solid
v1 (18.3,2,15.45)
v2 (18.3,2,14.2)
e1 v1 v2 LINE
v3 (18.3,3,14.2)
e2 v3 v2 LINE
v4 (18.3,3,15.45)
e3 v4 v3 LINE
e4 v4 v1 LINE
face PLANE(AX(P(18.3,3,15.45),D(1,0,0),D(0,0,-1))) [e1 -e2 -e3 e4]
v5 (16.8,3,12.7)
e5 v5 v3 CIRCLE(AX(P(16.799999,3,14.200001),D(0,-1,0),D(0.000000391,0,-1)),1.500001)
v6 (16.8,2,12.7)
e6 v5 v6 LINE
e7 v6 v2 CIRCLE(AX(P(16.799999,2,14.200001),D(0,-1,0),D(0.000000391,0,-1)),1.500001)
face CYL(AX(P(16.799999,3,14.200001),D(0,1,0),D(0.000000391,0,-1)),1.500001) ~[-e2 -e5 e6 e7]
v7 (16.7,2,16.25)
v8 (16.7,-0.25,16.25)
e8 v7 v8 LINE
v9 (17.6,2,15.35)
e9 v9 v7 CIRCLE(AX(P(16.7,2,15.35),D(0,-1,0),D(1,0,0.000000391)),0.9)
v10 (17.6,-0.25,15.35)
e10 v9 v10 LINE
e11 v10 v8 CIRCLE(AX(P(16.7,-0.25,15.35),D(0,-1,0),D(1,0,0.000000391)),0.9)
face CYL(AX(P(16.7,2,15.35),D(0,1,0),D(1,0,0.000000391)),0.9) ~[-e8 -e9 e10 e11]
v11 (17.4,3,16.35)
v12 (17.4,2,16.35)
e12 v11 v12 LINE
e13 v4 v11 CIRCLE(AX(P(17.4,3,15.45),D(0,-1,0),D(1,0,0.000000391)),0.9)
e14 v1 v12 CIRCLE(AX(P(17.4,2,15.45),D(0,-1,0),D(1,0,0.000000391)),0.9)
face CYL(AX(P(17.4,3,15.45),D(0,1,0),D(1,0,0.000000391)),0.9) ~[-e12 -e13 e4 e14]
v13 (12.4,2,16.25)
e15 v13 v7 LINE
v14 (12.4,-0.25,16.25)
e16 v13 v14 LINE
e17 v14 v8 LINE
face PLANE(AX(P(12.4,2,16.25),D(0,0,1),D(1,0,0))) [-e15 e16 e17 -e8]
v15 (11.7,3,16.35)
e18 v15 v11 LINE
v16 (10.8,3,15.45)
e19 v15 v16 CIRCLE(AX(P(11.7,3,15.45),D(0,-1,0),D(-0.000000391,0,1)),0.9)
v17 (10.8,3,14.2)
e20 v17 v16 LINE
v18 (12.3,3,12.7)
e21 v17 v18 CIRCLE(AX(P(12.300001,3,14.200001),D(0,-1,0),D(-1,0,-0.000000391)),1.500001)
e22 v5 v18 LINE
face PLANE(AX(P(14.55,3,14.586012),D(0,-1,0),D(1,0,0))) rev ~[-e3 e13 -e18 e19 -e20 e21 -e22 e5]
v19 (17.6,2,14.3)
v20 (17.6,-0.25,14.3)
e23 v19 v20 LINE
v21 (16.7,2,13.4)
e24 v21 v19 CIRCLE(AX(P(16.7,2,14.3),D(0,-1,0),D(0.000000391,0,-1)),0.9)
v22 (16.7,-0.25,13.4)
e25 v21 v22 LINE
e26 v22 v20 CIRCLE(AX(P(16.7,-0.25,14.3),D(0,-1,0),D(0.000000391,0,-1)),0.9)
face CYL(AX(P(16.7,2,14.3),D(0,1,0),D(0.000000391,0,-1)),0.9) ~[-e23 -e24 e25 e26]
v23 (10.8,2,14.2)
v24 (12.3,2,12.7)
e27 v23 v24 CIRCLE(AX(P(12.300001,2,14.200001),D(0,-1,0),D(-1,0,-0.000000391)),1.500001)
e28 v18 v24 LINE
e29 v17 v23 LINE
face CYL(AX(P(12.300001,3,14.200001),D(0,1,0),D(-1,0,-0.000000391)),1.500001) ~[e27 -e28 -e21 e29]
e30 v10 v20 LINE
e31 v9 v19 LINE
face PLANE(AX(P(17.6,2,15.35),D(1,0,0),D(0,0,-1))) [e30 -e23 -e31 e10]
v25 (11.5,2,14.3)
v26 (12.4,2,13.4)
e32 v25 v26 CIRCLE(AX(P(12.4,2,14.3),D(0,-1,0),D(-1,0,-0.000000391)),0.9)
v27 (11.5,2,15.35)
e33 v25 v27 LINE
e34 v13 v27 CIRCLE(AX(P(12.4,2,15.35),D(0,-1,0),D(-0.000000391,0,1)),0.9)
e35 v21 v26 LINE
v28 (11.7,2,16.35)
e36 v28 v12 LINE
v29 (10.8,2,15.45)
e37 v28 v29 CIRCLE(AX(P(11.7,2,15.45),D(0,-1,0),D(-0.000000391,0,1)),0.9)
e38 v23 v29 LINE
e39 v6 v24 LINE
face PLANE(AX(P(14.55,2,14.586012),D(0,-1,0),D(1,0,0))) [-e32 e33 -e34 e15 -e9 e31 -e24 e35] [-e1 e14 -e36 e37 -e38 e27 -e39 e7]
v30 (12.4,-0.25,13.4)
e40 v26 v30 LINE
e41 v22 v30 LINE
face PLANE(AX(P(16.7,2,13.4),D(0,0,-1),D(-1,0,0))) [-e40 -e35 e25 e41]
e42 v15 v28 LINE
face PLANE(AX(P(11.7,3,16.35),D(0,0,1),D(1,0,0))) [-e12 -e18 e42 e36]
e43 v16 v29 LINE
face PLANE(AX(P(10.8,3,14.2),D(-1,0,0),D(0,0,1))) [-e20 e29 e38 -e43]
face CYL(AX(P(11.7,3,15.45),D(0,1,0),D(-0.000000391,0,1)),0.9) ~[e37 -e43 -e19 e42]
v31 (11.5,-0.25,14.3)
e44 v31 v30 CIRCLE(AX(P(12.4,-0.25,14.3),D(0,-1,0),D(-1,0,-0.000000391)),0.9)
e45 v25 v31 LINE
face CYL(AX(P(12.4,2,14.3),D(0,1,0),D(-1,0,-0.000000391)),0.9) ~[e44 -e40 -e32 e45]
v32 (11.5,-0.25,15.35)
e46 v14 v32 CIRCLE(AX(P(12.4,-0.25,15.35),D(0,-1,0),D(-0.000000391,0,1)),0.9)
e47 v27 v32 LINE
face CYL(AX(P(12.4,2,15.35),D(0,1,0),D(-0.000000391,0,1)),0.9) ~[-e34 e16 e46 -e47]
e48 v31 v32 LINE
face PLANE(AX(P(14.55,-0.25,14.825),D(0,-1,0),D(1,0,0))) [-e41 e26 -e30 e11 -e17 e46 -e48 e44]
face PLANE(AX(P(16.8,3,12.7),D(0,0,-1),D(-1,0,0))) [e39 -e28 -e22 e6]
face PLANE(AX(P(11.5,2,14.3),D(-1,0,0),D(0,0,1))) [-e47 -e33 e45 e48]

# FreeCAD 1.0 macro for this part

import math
import FreeCAD as App
import Part
import Sketcher

V = App.Vector
Q = App.Units.Quantity

doc = App.newDocument("Part")
params = doc.addObject("Spreadsheet::Sheet", "Params")
for row, (alias, value) in enumerate([
    ("sketch1_radius", "0.9 mm"),
    ("sketch1_radius2", "1.500001 mm"),
    ("sketch1_width", "4.5 mm"),
    ("sketch1_height", "1.25 mm"),
    ("pad1_length", "1 mm"),
    ("sketch2_radius", "0.9 mm"),
    ("sketch2_width", "4.3 mm"),
    ("sketch2_height", "1.05 mm"),
    ("pad2_length", "2.25 mm"),
], start=1):
    params.set(f"A{row}", alias)
    params.set(f"B{row}", "=" + value)
    params.setAlias(f"B{row}", alias)

body = doc.addObject("PartDesign::Body", "Body")

# Sketch on XZ plane
sketch1 = body.newObject("Sketcher::SketchObject", "Sketch")
sketch1.AttachmentSupport = (doc.getObject("XZ_Plane"), [""])
sketch1.MapMode = "FlatFace"
sketch1.addGeometry([
    Part.ArcOfCircle(Part.Circle(V(11.7, 15.4, 0), V(0, 0, 1), 0.9), math.radians(90), math.radians(180)),  # 0
    Part.LineSegment(V(10.8, 15.4, 0), V(10.8, 14.2, 0)),  # 1
    Part.ArcOfCircle(Part.Circle(V(12.3, 14.2, 0), V(0, 0, 1), 1.5), math.radians(-180), math.radians(-90)),  # 2
    Part.LineSegment(V(12.3, 12.7, 0), V(16.8, 12.7, 0)),  # 3
    Part.ArcOfCircle(Part.Circle(V(16.8, 14.2, 0), V(0, 0, 1), 1.5), math.radians(-90), math.radians(0)),  # 4
    Part.LineSegment(V(18.3, 14.2, 0), V(18.3, 15.4, 0)),  # 5
    Part.ArcOfCircle(Part.Circle(V(17.4, 15.4, 0), V(0, 0, 1), 0.9), math.radians(0), math.radians(90)),  # 6
    Part.LineSegment(V(17.4, 16.4, 0), V(11.7, 16.4, 0)),  # 7
], False)
sketch1.addConstraint([
    Sketcher.Constraint("Tangent", 0, 2, 1, 1),
    Sketcher.Constraint("Tangent", 1, 2, 2, 1),
    Sketcher.Constraint("Tangent", 2, 2, 3, 1),
    Sketcher.Constraint("Tangent", 3, 2, 4, 1),
    Sketcher.Constraint("Tangent", 4, 2, 5, 1),
    Sketcher.Constraint("Tangent", 5, 2, 6, 1),
    Sketcher.Constraint("Tangent", 6, 2, 7, 1),
    Sketcher.Constraint("Tangent", 7, 2, 0, 1),
    Sketcher.Constraint("Vertical", 1),
    Sketcher.Constraint("Horizontal", 3),
    Sketcher.Constraint("Vertical", 5),
    Sketcher.Constraint("Horizontal", 7),
    Sketcher.Constraint("Equal", 2, 4),
    Sketcher.Constraint("Equal", 0, 6),
    Sketcher.Constraint("Radius", 0, Q("0.9 mm")),
    Sketcher.Constraint("Radius", 2, Q("1.500001 mm")),
    Sketcher.Constraint("DistanceX", 3, 1, 3, 2, Q("4.5 mm")),
    Sketcher.Constraint("DistanceY", 1, 2, 1, 1, Q("1.25 mm")),
    Sketcher.Constraint("DistanceX", -1, 1, 0, 3, Q("11.7 mm")),
    Sketcher.Constraint("DistanceY", -1, 1, 2, 3, Q("14.200001 mm")),
])
sketch1.setExpression("Constraints[14]", "Params.sketch1_radius")
sketch1.setExpression("Constraints[15]", "Params.sketch1_radius2")
sketch1.setExpression("Constraints[16]", "Params.sketch1_width")
sketch1.setExpression("Constraints[17]", "Params.sketch1_height")
pad1 = body.newObject("PartDesign::Pad", "Pad")
pad1.Profile = sketch1
pad1.setExpression("Length", "Params.pad1_length")
body2 = doc.addObject("PartDesign::Body", "Body001")
doc.recompute()

body.Placement = App.Placement(V(0, 3, 0), App.Rotation(V(0, 0, 1), 0))
boolean = body2.newObject("PartDesign::Boolean", "Boolean")
boolean.Type = "Fuse"
boolean.addObjects([body])
body3 = doc.addObject("PartDesign::Body", "Body002")

# Sketch on XZ plane
sketch2 = body3.newObject("Sketcher::SketchObject", "Sketch001")
sketch2.AttachmentSupport = (doc.getObject("XZ_Plane002"), [""])
sketch2.MapMode = "FlatFace"
sketch2.addGeometry([
    Part.ArcOfCircle(Part.Circle(V(12.4, 15.3, 0), V(0, 0, 1), 0.9), math.radians(90), math.radians(180)),  # 0
    Part.LineSegment(V(11.5, 15.3, 0), V(11.5, 14.3, 0)),  # 1
    Part.ArcOfCircle(Part.Circle(V(12.4, 14.3, 0), V(0, 0, 1), 0.9), math.radians(-180), math.radians(-90)),  # 2
    Part.LineSegment(V(12.4, 13.4, 0), V(16.7, 13.4, 0)),  # 3
    Part.ArcOfCircle(Part.Circle(V(16.7, 14.3, 0), V(0, 0, 1), 0.9), math.radians(-90), math.radians(0)),  # 4
    Part.LineSegment(V(17.6, 14.3, 0), V(17.6, 15.3, 0)),  # 5
    Part.ArcOfCircle(Part.Circle(V(16.7, 15.3, 0), V(0, 0, 1), 0.9), math.radians(0), math.radians(90)),  # 6
    Part.LineSegment(V(16.7, 16.2, 0), V(12.4, 16.2, 0)),  # 7
], False)
sketch2.addConstraint([
    Sketcher.Constraint("Tangent", 0, 2, 1, 1),
    Sketcher.Constraint("Tangent", 1, 2, 2, 1),
    Sketcher.Constraint("Tangent", 2, 2, 3, 1),
    Sketcher.Constraint("Tangent", 3, 2, 4, 1),
    Sketcher.Constraint("Tangent", 4, 2, 5, 1),
    Sketcher.Constraint("Tangent", 5, 2, 6, 1),
    Sketcher.Constraint("Tangent", 6, 2, 7, 1),
    Sketcher.Constraint("Tangent", 7, 2, 0, 1),
    Sketcher.Constraint("Vertical", 1),
    Sketcher.Constraint("Horizontal", 3),
    Sketcher.Constraint("Vertical", 5),
    Sketcher.Constraint("Horizontal", 7),
    Sketcher.Constraint("Equal", 0, 2),
    Sketcher.Constraint("Equal", 2, 4),
    Sketcher.Constraint("Equal", 4, 6),
    Sketcher.Constraint("Radius", 0, Q("0.9 mm")),
    Sketcher.Constraint("DistanceX", 3, 1, 3, 2, Q("4.3 mm")),
    Sketcher.Constraint("DistanceY", 1, 2, 1, 1, Q("1.05 mm")),
    Sketcher.Constraint("DistanceX", -1, 1, 0, 3, Q("12.4 mm")),
    Sketcher.Constraint("DistanceY", -1, 1, 2, 3, Q("14.3 mm")),
])
sketch2.setExpression("Constraints[15]", "Params.sketch2_radius")
sketch2.setExpression("Constraints[16]", "Params.sketch2_width")
sketch2.setExpression("Constraints[17]", "Params.sketch2_height")
pad2 = body3.newObject("PartDesign::Pad", "Pad001")
pad2.Profile = sketch2
pad2.setExpression("Length", "Params.pad2_length")
body4 = doc.addObject("PartDesign::Body", "Body003")
doc.recompute()

body3.Placement = App.Placement(V(0, 2, 0), App.Rotation(V(0, 0, 1), 0))
boolean2 = body4.newObject("PartDesign::Boolean", "Boolean001")
boolean2.Type = "Fuse"
boolean2.addObjects([body3])
doc.recompute()

boolean3 = body4.newObject("PartDesign::Boolean", "Boolean002")
boolean3.Type = "Fuse"
boolean3.addObjects([body2])

doc.recompute()
